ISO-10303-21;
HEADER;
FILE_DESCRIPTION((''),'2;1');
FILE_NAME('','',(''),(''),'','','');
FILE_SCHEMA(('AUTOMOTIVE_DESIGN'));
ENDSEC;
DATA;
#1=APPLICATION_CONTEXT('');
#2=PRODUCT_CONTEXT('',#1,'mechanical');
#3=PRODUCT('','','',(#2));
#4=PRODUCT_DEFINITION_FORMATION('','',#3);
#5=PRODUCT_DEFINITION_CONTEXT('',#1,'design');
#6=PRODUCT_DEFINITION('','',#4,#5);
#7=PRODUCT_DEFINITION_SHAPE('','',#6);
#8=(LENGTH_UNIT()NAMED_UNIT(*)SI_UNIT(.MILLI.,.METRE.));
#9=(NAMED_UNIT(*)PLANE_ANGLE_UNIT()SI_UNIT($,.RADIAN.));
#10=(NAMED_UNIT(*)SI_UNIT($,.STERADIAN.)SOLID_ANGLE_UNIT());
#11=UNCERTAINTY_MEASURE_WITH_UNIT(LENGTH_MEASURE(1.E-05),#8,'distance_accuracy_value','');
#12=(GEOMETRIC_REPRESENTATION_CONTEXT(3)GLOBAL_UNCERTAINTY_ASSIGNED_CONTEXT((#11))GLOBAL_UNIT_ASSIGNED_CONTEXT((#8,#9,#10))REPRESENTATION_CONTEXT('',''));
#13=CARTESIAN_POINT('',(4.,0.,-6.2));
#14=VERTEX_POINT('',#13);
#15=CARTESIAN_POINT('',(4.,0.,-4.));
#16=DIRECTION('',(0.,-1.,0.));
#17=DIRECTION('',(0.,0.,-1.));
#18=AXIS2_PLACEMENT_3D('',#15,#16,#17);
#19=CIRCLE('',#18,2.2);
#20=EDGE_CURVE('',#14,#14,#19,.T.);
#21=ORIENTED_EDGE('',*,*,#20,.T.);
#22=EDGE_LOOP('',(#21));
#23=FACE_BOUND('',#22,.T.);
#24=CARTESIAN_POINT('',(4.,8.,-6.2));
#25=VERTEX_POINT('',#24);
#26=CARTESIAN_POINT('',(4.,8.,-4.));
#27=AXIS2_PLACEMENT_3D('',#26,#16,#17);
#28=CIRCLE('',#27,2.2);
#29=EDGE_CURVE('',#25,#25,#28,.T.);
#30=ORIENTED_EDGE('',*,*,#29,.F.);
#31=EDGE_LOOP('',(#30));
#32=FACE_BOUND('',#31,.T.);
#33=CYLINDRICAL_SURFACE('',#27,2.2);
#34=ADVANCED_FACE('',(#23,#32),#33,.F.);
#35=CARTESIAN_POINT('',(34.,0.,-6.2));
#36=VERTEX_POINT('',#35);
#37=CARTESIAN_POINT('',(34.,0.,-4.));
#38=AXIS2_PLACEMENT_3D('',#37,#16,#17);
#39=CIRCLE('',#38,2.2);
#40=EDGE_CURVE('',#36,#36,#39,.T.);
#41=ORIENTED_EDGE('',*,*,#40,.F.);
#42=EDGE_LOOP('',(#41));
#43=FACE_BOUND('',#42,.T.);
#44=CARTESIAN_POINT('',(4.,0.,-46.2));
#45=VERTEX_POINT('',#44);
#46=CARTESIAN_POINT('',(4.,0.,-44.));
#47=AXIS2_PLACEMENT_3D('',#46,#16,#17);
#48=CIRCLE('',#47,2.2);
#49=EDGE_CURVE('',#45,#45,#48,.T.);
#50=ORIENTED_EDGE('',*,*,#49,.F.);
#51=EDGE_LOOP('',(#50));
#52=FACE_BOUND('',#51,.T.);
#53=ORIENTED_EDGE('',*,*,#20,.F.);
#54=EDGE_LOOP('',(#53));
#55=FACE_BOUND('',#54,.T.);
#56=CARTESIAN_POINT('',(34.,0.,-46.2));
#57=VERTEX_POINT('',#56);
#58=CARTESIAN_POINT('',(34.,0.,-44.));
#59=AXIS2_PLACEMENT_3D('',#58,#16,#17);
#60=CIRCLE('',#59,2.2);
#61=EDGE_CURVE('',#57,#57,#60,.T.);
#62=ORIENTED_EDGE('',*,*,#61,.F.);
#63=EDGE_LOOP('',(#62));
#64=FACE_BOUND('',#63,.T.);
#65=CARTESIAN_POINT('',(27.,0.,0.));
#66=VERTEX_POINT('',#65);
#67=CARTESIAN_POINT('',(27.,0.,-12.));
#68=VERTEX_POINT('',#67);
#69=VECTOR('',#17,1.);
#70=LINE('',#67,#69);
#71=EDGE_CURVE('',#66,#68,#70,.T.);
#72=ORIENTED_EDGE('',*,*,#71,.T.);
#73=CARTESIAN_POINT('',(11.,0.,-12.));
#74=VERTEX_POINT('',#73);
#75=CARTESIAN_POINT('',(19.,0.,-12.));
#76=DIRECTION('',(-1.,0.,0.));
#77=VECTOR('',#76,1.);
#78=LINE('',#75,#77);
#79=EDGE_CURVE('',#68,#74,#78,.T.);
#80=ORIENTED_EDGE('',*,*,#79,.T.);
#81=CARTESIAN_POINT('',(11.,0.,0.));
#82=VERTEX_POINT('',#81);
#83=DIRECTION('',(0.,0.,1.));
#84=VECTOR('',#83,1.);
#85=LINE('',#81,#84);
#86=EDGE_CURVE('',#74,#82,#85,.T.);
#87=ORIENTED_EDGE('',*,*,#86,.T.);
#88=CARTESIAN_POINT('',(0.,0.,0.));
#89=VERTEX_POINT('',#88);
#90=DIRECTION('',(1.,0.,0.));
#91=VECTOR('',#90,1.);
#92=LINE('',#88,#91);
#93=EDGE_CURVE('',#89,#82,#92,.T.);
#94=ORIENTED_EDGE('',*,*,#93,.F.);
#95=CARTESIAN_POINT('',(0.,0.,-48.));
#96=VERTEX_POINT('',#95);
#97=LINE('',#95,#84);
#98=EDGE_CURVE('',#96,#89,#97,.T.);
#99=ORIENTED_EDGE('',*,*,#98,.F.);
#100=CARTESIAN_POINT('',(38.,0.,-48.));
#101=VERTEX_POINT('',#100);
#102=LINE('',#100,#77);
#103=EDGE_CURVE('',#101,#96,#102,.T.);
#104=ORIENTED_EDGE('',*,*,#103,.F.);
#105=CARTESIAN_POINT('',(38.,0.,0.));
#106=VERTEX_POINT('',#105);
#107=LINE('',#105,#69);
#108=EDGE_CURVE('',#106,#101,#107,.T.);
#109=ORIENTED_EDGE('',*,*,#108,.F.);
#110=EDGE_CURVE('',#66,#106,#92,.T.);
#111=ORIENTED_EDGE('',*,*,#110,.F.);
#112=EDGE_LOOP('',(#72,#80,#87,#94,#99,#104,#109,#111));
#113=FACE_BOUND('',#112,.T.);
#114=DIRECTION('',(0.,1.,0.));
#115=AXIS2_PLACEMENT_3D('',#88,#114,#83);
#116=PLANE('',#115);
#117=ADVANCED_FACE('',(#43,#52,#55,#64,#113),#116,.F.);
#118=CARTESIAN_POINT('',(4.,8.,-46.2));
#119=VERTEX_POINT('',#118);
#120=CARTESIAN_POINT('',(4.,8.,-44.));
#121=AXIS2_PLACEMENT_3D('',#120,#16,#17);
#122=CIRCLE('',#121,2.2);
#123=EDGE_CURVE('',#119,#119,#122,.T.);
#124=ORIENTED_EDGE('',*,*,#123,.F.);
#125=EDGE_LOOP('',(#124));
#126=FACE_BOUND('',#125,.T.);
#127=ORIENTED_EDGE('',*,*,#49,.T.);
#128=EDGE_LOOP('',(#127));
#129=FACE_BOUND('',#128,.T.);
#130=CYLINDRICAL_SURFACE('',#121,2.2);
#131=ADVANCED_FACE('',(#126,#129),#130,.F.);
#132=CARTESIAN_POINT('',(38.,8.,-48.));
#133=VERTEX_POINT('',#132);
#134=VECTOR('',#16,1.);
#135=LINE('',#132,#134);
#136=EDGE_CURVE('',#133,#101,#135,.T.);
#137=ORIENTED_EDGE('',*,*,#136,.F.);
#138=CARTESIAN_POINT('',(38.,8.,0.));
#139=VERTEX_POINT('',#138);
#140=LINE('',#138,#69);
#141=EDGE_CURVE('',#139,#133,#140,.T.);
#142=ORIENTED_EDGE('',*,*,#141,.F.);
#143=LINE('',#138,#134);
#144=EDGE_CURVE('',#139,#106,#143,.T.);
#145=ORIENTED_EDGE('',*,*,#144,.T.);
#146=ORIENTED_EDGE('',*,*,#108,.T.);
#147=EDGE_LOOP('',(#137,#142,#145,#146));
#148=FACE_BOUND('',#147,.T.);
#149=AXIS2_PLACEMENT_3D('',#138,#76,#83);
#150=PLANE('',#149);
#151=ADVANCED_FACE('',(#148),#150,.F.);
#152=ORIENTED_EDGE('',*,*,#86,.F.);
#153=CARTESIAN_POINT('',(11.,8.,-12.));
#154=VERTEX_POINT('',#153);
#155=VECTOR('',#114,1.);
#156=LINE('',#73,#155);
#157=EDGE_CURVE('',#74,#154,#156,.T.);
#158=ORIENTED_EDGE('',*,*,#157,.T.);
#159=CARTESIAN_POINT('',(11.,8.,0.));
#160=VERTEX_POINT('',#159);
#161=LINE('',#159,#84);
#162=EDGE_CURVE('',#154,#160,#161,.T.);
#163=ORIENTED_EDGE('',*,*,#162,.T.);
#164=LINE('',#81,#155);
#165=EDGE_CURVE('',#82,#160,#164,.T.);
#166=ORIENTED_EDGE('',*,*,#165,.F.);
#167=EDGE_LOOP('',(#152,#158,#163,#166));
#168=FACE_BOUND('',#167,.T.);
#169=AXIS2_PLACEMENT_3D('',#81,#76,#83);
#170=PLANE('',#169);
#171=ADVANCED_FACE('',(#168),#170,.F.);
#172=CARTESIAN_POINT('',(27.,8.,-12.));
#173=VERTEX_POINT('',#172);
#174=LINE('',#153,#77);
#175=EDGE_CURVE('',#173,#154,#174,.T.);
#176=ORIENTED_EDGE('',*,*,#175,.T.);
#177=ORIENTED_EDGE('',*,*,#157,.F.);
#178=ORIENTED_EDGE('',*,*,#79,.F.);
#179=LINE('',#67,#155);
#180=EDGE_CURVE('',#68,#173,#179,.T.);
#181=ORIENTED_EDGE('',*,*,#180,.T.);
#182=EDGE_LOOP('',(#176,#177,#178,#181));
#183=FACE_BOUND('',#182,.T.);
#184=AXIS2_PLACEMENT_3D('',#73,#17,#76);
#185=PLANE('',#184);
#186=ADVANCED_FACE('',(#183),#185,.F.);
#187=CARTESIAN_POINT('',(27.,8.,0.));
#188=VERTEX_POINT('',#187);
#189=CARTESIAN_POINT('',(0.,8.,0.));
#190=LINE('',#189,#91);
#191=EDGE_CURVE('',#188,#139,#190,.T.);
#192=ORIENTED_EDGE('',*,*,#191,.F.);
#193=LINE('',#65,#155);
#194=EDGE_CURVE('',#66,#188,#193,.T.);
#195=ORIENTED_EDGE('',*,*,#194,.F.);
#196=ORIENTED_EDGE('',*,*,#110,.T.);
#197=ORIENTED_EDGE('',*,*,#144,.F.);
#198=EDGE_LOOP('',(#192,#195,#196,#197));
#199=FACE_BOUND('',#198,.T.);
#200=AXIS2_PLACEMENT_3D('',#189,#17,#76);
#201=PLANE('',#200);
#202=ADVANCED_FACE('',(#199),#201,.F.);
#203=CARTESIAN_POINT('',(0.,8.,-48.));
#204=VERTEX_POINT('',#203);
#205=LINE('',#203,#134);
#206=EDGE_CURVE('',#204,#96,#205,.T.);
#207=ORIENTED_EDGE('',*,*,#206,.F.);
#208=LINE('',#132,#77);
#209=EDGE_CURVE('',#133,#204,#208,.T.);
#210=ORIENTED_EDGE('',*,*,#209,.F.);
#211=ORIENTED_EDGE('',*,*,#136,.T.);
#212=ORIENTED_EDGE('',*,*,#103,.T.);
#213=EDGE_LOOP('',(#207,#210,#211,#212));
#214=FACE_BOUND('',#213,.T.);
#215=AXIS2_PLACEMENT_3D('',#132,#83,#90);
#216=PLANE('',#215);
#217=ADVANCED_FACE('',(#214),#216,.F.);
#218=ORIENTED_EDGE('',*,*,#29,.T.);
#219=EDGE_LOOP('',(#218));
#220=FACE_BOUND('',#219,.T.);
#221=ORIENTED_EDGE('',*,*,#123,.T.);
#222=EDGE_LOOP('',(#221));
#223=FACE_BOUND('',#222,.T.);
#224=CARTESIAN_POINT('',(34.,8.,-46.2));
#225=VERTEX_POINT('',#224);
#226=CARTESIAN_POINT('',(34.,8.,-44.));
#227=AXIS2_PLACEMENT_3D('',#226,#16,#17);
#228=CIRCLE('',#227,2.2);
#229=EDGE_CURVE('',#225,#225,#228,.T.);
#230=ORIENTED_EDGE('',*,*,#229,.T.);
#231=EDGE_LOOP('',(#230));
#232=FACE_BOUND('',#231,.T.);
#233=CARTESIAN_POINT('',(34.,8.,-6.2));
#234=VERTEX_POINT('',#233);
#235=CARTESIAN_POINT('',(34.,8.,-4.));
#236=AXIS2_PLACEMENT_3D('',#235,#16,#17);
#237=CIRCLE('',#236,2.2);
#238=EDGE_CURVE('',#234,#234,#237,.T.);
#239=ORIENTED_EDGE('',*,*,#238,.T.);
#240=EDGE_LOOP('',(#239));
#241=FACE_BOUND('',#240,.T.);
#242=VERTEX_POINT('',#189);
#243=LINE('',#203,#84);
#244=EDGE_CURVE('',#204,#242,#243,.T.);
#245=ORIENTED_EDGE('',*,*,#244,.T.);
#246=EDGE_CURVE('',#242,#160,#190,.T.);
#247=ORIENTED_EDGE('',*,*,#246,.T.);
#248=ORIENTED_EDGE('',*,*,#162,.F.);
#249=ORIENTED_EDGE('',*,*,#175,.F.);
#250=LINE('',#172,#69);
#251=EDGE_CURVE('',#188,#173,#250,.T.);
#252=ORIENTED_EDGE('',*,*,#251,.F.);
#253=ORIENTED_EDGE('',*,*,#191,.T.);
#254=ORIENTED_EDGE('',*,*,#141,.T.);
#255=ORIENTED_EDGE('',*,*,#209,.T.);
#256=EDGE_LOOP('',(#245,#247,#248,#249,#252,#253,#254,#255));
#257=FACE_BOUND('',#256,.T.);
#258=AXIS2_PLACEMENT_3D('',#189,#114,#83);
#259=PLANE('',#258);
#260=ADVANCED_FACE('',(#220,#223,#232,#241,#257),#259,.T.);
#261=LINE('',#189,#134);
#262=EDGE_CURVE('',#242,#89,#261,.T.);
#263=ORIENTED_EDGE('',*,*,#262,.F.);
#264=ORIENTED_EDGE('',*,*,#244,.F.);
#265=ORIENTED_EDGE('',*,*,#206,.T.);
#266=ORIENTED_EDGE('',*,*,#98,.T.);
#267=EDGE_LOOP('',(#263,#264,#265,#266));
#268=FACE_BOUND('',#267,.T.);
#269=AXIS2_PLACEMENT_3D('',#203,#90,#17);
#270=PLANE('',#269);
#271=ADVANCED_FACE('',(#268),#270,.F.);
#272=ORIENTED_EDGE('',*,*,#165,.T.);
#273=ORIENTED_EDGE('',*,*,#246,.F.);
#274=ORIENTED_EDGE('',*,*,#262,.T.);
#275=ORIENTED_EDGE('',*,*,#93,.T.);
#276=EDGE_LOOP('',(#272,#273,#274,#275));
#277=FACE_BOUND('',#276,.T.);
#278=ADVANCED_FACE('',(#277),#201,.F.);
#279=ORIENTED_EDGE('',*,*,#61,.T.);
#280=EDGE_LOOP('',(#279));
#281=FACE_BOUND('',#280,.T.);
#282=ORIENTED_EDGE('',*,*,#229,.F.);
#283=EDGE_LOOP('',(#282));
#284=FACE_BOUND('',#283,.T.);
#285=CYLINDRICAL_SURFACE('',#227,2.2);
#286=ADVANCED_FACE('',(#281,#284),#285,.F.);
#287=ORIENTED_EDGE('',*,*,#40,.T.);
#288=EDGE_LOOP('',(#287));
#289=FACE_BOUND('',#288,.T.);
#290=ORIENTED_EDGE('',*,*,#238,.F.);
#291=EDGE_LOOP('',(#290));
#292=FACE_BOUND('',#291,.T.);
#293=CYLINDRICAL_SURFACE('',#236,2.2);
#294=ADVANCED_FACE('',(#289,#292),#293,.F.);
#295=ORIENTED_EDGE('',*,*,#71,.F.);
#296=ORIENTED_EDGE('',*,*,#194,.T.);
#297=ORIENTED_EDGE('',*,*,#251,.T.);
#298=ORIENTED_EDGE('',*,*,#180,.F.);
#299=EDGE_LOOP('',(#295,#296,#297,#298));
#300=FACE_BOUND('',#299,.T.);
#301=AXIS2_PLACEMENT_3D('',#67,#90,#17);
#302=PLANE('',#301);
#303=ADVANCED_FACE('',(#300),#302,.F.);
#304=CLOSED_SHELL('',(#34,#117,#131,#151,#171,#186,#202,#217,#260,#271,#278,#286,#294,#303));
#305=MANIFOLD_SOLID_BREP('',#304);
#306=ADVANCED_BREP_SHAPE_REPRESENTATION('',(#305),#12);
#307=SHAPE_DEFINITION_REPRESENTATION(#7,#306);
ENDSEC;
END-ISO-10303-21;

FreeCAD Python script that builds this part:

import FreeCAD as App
import Part
import Sketcher


def add_polygon(sketch, points):
    """Adds a closed chain of lines whose ends are joined by coincident constraints."""
    first, n = sketch.GeometryCount, len(points)
    for a, b in zip(points, points[1:] + points[:1]):
        sketch.addGeometry(Part.LineSegment(App.Vector(*a, 0), App.Vector(*b, 0)), False)
    for i in range(n):
        sketch.addConstraint(Sketcher.Constraint("Coincident", first + i, 2, first + (i + 1) % n, 1))

doc = App.newDocument("Part")
body = doc.addObject("PartDesign::Body", "Body")

sketch1 = doc.addObject("Sketcher::SketchObject", "Sketch")
body.addObject(sketch1)
sketch1.AttachmentSupport = (doc.XZ_Plane, [""])
sketch1.MapMode = "FlatFace"
add_polygon(sketch1, [(0, -48), (0, 0), (38, 0), (38, -48)])
sketch1.addConstraint(Sketcher.Constraint("Vertical", 0))
sketch1.addConstraint(Sketcher.Constraint("Horizontal", 1))
sketch1.addConstraint(Sketcher.Constraint("Vertical", 2))
sketch1.addConstraint(Sketcher.Constraint("Horizontal", 3))
sketch1.addConstraint(Sketcher.Constraint("Coincident", 0, 2, -1, 1))
sketch1.addConstraint(Sketcher.Constraint("DistanceX", 1, 1, 1, 2, 38.0))
sketch1.addConstraint(Sketcher.Constraint("DistanceY", 0, 1, 0, 2, 48.0))
pad1 = doc.addObject("PartDesign::Pad", "Pad")
body.addObject(pad1)
pad1.Profile = sketch1
pad1.Length = 8
pad1.Reversed = True

sketch2 = doc.addObject("Sketcher::SketchObject", "Sketch001")
body.addObject(sketch2)
sketch2.AttachmentSupport = (doc.XZ_Plane, [""])
sketch2.MapMode = "FlatFace"
sketch2.addGeometry(Part.Circle(App.Vector(4, -4, 0), App.Vector(0, 0, 1), 2.2), False)
sketch2.addGeometry(Part.Circle(App.Vector(34, -4, 0), App.Vector(0, 0, 1), 2.2), False)
sketch2.addGeometry(Part.Circle(App.Vector(34, -44, 0), App.Vector(0, 0, 1), 2.2), False)
sketch2.addGeometry(Part.Circle(App.Vector(4, -44, 0), App.Vector(0, 0, 1), 2.2), False)
sketch2.addConstraint(Sketcher.Constraint("Equal", 0, 1))
sketch2.addConstraint(Sketcher.Constraint("Equal", 1, 2))
sketch2.addConstraint(Sketcher.Constraint("Equal", 2, 3))
sketch2.addConstraint(Sketcher.Constraint("Horizontal", 0, 3, 1, 3))
sketch2.addConstraint(Sketcher.Constraint("Horizontal", 2, 3, 3, 3))
sketch2.addConstraint(Sketcher.Constraint("Vertical", 1, 3, 2, 3))
sketch2.addConstraint(Sketcher.Constraint("Vertical", 0, 3, 3, 3))
sketch2.addConstraint(Sketcher.Constraint("Diameter", 0, 4.4))
sketch2.addConstraint(Sketcher.Constraint("DistanceX", -1, 1, 0, 3, 4.0))
sketch2.addConstraint(Sketcher.Constraint("DistanceY", 0, 3, -1, 1, 4.0))
sketch2.addConstraint(Sketcher.Constraint("DistanceX", -1, 1, 1, 3, 34.0))
sketch2.addConstraint(Sketcher.Constraint("DistanceY", 2, 3, -1, 1, 44.0))
pocket1 = doc.addObject("PartDesign::Pocket", "Pocket")
body.addObject(pocket1)
pocket1.Profile = sketch2
pocket1.Length = 8

sketch3 = doc.addObject("Sketcher::SketchObject", "Sketch002")
body.addObject(sketch3)
sketch3.AttachmentSupport = (doc.XZ_Plane, [""])
sketch3.MapMode = "FlatFace"
sketch3.AttachmentOffset = App.Placement(App.Vector(0, 0, -8), App.Rotation())
add_polygon(sketch3, [(27, -12), (11, -12), (11, 0), (27, 0)])
sketch3.addConstraint(Sketcher.Constraint("Horizontal", 0))
sketch3.addConstraint(Sketcher.Constraint("Vertical", 1))
sketch3.addConstraint(Sketcher.Constraint("Horizontal", 2))
sketch3.addConstraint(Sketcher.Constraint("Vertical", 3))
sketch3.addConstraint(Sketcher.Constraint("PointOnObject", 1, 2, -1))
sketch3.addConstraint(Sketcher.Constraint("DistanceX", 0, 2, 0, 1, 16.0))
sketch3.addConstraint(Sketcher.Constraint("DistanceY", 1, 1, 1, 2, 12.0))
sketch3.addConstraint(Sketcher.Constraint("DistanceX", -1, 1, 0, 2, 11.0))
pocket2 = doc.addObject("PartDesign::Pocket", "Pocket001")
body.addObject(pocket2)
pocket2.Profile = sketch3
pocket2.Length = 8
pocket2.Reversed = True

doc.recompute()
